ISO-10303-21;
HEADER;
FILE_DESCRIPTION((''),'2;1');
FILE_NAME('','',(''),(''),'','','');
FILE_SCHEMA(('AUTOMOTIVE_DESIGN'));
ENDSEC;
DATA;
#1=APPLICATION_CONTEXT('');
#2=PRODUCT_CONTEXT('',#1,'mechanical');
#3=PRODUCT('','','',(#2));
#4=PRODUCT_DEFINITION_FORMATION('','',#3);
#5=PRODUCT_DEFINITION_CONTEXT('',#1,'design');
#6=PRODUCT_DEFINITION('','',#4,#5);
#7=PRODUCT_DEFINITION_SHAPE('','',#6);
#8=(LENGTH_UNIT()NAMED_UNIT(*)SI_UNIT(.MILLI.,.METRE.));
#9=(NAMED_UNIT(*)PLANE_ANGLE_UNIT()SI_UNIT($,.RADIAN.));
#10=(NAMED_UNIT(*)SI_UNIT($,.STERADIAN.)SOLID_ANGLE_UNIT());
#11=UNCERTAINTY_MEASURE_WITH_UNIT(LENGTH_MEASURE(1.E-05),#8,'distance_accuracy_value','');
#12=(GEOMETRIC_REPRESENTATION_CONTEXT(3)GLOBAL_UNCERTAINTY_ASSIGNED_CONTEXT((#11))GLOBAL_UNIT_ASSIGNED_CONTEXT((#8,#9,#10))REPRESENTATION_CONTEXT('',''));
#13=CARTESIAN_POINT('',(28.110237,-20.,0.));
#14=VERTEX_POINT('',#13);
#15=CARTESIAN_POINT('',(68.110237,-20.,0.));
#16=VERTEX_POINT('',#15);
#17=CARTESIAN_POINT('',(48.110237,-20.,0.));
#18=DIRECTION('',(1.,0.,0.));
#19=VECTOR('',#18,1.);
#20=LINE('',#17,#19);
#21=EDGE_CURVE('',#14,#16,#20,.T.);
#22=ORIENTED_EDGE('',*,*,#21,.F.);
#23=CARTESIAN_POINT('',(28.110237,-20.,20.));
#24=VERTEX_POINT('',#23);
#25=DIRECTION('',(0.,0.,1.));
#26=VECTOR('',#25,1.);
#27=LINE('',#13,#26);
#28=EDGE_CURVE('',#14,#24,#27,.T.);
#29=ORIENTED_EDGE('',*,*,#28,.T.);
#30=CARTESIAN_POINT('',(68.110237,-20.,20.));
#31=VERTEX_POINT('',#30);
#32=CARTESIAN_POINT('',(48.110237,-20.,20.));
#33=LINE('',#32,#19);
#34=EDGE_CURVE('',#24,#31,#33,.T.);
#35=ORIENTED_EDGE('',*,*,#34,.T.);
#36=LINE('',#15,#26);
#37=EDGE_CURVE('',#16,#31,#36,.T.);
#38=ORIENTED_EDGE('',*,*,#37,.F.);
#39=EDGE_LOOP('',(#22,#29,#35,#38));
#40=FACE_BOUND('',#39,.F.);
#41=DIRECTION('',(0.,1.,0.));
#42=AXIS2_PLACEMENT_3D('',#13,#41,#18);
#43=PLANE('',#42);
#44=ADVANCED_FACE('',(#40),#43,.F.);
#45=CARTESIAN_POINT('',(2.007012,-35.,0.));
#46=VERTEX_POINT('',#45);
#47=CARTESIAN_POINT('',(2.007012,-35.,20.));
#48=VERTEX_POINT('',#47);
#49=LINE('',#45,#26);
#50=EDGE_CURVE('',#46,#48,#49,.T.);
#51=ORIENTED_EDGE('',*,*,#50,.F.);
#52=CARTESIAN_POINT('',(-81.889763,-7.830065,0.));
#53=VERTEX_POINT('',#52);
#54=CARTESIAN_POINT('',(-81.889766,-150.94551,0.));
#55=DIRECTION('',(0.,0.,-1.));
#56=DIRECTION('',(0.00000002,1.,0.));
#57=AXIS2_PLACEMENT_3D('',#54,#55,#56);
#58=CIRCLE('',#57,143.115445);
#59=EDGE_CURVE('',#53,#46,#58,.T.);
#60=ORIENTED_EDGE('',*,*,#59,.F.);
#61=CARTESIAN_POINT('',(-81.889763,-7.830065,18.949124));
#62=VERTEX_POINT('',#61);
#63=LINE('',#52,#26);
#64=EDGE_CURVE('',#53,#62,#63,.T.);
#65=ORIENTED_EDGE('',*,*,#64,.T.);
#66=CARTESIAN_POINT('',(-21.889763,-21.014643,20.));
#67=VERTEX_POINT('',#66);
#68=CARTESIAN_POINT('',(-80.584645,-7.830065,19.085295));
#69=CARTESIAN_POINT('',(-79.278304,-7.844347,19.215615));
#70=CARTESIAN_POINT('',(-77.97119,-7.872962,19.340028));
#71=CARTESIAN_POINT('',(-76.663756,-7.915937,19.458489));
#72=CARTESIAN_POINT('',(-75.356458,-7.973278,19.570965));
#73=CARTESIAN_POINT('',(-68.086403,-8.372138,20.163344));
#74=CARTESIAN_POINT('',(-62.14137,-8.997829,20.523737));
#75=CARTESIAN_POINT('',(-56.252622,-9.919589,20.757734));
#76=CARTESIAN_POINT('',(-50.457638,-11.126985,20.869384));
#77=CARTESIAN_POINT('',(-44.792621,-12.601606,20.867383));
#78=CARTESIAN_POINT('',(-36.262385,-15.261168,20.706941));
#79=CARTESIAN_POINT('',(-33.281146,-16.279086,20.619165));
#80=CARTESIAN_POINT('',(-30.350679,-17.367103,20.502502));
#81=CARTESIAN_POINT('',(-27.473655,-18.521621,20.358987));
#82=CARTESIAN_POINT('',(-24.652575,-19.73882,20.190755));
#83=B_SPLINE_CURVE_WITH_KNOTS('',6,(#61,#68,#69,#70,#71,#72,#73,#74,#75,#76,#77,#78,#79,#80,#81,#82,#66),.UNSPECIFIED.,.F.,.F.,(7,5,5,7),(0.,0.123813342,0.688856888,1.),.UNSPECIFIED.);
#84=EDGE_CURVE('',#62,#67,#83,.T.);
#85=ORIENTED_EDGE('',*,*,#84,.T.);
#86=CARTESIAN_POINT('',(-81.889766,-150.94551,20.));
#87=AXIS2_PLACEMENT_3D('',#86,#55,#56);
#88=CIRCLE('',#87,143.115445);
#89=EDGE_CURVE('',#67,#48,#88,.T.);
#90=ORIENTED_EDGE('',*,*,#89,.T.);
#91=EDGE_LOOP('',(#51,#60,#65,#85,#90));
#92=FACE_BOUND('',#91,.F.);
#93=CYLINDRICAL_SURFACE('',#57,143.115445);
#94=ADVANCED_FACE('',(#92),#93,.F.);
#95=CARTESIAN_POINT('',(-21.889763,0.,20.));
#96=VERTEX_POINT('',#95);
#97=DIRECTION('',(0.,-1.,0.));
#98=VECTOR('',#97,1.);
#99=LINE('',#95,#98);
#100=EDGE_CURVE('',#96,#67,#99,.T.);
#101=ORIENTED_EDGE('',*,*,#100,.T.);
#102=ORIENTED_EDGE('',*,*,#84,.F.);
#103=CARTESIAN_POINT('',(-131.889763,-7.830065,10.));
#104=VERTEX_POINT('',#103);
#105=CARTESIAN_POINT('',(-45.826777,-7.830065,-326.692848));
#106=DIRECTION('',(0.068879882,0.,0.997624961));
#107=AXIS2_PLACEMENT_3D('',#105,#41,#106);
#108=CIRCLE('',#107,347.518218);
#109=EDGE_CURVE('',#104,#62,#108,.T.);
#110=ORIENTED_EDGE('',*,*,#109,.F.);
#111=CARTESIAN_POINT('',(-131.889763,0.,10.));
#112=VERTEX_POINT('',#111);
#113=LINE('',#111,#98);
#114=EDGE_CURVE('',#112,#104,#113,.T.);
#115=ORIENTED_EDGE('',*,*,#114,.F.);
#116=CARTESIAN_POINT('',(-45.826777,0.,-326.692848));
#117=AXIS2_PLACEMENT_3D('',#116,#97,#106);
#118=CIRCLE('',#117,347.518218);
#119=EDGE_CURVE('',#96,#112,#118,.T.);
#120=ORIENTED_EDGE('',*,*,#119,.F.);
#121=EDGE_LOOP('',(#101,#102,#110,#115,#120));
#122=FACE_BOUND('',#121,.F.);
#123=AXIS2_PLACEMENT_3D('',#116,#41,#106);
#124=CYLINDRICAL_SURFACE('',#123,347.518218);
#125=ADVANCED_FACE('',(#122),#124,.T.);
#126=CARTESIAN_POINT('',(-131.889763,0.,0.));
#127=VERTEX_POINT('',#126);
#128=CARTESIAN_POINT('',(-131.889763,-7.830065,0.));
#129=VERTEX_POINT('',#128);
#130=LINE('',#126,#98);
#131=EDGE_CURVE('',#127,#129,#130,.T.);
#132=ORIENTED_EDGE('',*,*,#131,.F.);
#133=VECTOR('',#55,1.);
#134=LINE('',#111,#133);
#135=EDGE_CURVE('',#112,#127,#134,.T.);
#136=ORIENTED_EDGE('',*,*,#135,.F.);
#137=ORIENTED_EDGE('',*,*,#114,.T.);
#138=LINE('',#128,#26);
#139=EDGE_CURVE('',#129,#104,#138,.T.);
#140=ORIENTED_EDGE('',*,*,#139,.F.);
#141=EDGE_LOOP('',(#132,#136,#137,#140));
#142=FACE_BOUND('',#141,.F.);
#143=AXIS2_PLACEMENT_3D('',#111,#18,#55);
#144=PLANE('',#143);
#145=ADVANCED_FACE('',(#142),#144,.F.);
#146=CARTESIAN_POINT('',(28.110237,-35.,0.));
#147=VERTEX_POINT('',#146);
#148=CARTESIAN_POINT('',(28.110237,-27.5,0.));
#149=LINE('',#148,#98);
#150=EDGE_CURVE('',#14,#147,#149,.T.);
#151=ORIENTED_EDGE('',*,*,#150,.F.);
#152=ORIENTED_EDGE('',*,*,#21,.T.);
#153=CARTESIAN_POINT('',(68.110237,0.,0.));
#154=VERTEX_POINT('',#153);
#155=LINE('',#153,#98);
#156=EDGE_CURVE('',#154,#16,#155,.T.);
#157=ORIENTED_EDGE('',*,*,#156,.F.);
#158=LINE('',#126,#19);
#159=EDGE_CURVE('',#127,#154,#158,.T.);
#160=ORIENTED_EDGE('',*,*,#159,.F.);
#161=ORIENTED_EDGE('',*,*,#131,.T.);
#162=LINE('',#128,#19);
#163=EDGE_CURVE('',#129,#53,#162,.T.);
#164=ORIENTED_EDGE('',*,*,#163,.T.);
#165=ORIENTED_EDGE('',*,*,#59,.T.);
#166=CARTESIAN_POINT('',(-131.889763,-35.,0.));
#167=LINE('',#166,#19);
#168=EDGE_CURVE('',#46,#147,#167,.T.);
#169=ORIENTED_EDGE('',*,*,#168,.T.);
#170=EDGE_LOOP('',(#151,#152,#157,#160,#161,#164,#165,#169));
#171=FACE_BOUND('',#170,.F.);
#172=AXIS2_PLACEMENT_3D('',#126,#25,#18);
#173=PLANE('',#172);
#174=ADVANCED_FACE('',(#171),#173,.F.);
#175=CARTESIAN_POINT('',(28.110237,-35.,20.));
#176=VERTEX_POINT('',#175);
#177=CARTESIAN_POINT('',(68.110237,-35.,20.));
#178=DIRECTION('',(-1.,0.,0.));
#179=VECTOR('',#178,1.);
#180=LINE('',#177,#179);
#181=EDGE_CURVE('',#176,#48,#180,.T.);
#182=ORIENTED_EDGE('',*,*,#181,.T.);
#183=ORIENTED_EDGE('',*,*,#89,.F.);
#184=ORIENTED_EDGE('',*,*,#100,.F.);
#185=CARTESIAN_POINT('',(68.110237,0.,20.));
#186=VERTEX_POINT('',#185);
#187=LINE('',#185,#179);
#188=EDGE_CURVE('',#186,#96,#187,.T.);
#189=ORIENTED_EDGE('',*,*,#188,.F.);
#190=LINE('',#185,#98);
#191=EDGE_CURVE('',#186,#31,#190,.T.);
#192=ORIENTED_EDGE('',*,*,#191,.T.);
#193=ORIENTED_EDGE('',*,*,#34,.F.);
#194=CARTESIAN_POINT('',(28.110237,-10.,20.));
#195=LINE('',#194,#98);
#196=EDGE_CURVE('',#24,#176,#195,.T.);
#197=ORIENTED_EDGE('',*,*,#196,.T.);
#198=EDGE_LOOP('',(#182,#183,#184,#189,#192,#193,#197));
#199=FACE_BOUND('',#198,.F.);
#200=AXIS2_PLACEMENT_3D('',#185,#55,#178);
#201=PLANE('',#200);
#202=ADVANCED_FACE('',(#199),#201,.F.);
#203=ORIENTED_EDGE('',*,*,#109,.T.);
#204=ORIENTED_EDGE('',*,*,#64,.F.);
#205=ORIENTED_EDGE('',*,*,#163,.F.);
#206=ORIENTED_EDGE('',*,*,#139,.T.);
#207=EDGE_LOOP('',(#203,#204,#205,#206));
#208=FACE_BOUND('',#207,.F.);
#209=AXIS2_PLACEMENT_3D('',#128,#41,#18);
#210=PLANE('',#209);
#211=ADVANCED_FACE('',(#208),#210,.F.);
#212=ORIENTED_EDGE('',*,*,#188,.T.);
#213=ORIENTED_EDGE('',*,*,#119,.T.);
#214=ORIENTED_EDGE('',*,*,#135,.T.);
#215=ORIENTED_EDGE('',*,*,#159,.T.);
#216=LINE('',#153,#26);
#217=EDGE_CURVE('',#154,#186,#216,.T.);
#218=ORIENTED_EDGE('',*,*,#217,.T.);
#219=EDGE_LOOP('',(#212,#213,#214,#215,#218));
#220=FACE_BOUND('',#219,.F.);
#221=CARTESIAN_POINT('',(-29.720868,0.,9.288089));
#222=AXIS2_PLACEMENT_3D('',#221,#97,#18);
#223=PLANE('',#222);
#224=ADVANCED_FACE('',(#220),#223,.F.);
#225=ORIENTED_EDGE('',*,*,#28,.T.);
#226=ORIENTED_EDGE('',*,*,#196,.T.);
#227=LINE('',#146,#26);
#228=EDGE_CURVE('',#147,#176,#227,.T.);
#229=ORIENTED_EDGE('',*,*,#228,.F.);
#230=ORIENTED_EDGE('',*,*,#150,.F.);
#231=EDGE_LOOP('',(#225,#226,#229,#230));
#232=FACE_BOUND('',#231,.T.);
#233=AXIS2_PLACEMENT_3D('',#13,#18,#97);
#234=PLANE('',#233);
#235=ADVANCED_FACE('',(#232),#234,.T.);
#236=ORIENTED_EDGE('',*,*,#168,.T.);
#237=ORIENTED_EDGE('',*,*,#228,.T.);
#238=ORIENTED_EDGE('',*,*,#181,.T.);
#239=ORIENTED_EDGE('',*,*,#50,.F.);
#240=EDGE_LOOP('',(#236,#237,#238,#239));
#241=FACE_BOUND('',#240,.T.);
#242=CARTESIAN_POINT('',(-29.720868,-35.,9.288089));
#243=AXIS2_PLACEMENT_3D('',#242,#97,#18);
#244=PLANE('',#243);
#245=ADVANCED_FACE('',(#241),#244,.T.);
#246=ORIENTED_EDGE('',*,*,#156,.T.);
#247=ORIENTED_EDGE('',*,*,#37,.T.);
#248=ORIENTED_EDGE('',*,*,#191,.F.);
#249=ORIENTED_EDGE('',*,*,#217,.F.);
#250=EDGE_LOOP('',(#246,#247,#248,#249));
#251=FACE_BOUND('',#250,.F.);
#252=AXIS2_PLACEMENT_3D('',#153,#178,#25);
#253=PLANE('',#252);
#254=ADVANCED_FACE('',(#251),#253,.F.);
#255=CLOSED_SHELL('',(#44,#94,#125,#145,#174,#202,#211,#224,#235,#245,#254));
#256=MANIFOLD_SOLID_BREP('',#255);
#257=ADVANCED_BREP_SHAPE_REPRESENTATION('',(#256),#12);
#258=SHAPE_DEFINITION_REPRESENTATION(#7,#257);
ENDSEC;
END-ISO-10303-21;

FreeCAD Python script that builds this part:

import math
import FreeCAD as App
import Part
import Sketcher

V = App.Vector
Q = App.Units.Quantity

doc = App.newDocument("Part")
body = doc.addObject("PartDesign::Body", "Body")

# Sketch on XZ plane
sketch1 = doc.addObject("Sketcher::SketchObject", "Sketch")
body.addObject(sketch1)
sketch1.AttachmentSupport = (doc.XZ_Plane, [""])
sketch1.MapMode = "FlatFace"
sketch1.addGeometry([
    Part.LineSegment(V(-132, 0, 0), V(68, 0, 0)),  # 0
    Part.LineSegment(V(68, 0, 0), V(68, 20, 0)),  # 1
    Part.LineSegment(V(68, 20, 0), V(-22, 20, 0)),  # 2
    Part.ArcOfCircle(Part.Circle(V(-46, -327, 0), V(0, 0, 1), 348), math.radians(86.05), math.radians(104.34)),  # 3
    Part.LineSegment(V(-132, 10, 0), V(-132, 0, 0)),  # 4
], False)
sketch1.addConstraint([
    Sketcher.Constraint("Coincident", 0, 2, 1, 1),
    Sketcher.Constraint("Coincident", 1, 2, 2, 1),
    Sketcher.Constraint("Coincident", 2, 2, 3, 1),
    Sketcher.Constraint("Coincident", 3, 2, 4, 1),
    Sketcher.Constraint("Coincident", 4, 2, 0, 1),
    Sketcher.Constraint("Horizontal", 0),
    Sketcher.Constraint("Vertical", 1),
    Sketcher.Constraint("Horizontal", 2),
    Sketcher.Constraint("Vertical", 4),
    Sketcher.Constraint("PointOnObject", 0, 2, -1),
    Sketcher.Constraint("DistanceX", 0, 1, 0, 2, Q("200 mm")),
    Sketcher.Constraint("DistanceX", 2, 2, 2, 1, Q("90 mm")),
    Sketcher.Constraint("DistanceY", 1, 1, 1, 2, Q("20 mm")),
    Sketcher.Constraint("DistanceY", 4, 2, 4, 1, Q("10 mm")),
    Sketcher.Constraint("Radius", 3, Q("347.518218 mm")),
    Sketcher.Constraint("DistanceX", 3, 3, -1, 1, Q("45.826777 mm")),
])
pad1 = doc.addObject("PartDesign::Pad", "Pad")
body.addObject(pad1)
pad1.Profile = sketch1
pad1.Length = 35

# Sketch on XY plane
sketch2 = doc.addObject("Sketcher::SketchObject", "Sketch001")
body.addObject(sketch2)
sketch2.AttachmentSupport = (doc.XY_Plane, [""])
sketch2.MapMode = "FlatFace"
sketch2.addGeometry([
    Part.LineSegment(V(-132, -35, 0), V(-132, -8, 0)),  # 0
    Part.LineSegment(V(-132, -8, 0), V(-82, -8, 0)),  # 1
    Part.ArcOfCircle(Part.Circle(V(-82, -151, 0), V(0, 0, 1), 143), math.radians(54), math.radians(90)),  # 2
    Part.LineSegment(V(2, -35, 0), V(-132, -35, 0)),  # 3
    Part.LineSegment(V(28, -35, 0), V(28, -20, 0)),  # 4
    Part.LineSegment(V(28, -20, 0), V(68, -20, 0)),  # 5
    Part.LineSegment(V(68, -20, 0), V(68, -35, 0)),  # 6
    Part.LineSegment(V(68, -35, 0), V(28, -35, 0)),  # 7
], False)
sketch2.addConstraint([
    Sketcher.Constraint("Coincident", 0, 2, 1, 1),
    Sketcher.Constraint("Tangent", 1, 2, 2, 2),
    Sketcher.Constraint("Coincident", 2, 1, 3, 1),
    Sketcher.Constraint("Coincident", 3, 2, 0, 1),
    Sketcher.Constraint("Coincident", 4, 2, 5, 1),
    Sketcher.Constraint("Coincident", 5, 2, 6, 1),
    Sketcher.Constraint("Coincident", 6, 2, 7, 1),
    Sketcher.Constraint("Coincident", 7, 2, 4, 1),
    Sketcher.Constraint("Vertical", 0),
    Sketcher.Constraint("Horizontal", 1),
    Sketcher.Constraint("Horizontal", 3),
    Sketcher.Constraint("Vertical", 4),
    Sketcher.Constraint("Horizontal", 5),
    Sketcher.Constraint("Vertical", 6),
    Sketcher.Constraint("Horizontal", 7),
    Sketcher.Constraint("Horizontal", 3, 2, 6, 2),
    Sketcher.Constraint("DistanceX", 1, 1, 1, 2, Q("50 mm")),
    Sketcher.Constraint("DistanceX", 5, 1, 5, 2, Q("40 mm")),
    Sketcher.Constraint("DistanceY", 4, 1, 4, 2, Q("15 mm")),
    Sketcher.Constraint("DistanceY", 2, 1, -1, 1, Q("35 mm")),
    Sketcher.Constraint("DistanceX", 1, 2, 4, 2, Q("110 mm")),
    Sketcher.Constraint("Radius", 2, Q("143.115445 mm")),
    Sketcher.Constraint("DistanceX", 3, 2, 3, 1, Q("133.896775 mm")),
    Sketcher.Constraint("DistanceX", -1, 1, 2, 1, Q("2.007012 mm")),
])
pocket1 = doc.addObject("PartDesign::Pocket", "Pocket")
body.addObject(pocket1)
pocket1.Profile = sketch2
pocket1.Length = 31.1
pocket1.Reversed = True

doc.recompute()
